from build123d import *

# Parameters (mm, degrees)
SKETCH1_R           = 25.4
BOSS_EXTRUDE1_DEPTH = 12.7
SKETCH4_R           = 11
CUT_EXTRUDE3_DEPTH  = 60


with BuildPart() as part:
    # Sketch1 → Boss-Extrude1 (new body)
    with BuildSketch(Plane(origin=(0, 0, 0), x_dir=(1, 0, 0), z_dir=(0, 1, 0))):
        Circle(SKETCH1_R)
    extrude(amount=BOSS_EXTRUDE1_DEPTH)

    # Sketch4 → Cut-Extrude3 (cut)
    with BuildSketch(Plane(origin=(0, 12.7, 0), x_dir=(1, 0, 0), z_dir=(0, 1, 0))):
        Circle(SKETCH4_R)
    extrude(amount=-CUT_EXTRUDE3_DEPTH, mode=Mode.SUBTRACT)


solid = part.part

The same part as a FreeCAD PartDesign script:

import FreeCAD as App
import Part
import Sketcher
Q = App.Units.Quantity

doc = App.newDocument("Part")
params = doc.addObject("Spreadsheet::Sheet", "Params")
for row, (alias, value) in enumerate([
    ("sketch1_diameter", "50.8 mm"),
    ("pad1_length", "12.7 mm"),
    ("sketch2_diameter", "22 mm"),
    ("pocket1_length", "60 mm"),
], start=1):
    params.set(f"A{row}", alias)
    params.set(f"B{row}", "=" + value)
    params.setAlias(f"B{row}", alias)

body = doc.addObject("PartDesign::Body", "Body")

sketch1 = doc.addObject("Sketcher::SketchObject", "Sketch")
body.addObject(sketch1)
sketch1.AttachmentSupport = (doc.XZ_Plane, [""])
sketch1.MapMode = "FlatFace"
sketch1.addGeometry(Part.Circle(App.Vector(0, 0, 0), App.Vector(0, 0, 1), 25.4), False)
sketch1.addConstraint([
    Sketcher.Constraint("Coincident", 0, 3, -1, 1),
    Sketcher.Constraint("Diameter", 0, Q("50.8 mm")),
])
sketch1.setExpression("Constraints[1]", "Params.sketch1_diameter")
pad1 = doc.addObject("PartDesign::Pad", "Pad")
body.addObject(pad1)
pad1.Profile = sketch1
pad1.setExpression("Length", "Params.pad1_length")
pad1.Reversed = True

sketch2 = doc.addObject("Sketcher::SketchObject", "Sketch001")
body.addObject(sketch2)
sketch2.AttachmentSupport = (doc.XZ_Plane, [""])
sketch2.MapMode = "FlatFace"
sketch2.AttachmentOffset = App.Placement(App.Vector(0, 0, -12.7), App.Rotation())
sketch2.addGeometry(Part.Circle(App.Vector(0, 0, 0), App.Vector(0, 0, 1), 11), False)
sketch2.addConstraint([
    Sketcher.Constraint("Coincident", 0, 3, -1, 1),
    Sketcher.Constraint("Diameter", 0, Q("22 mm")),
])
sketch2.setExpression("Constraints[1]", "Params.sketch2_diameter")
pocket1 = doc.addObject("PartDesign::Pocket", "Pocket")
body.addObject(pocket1)
pocket1.Profile = sketch2
pocket1.setExpression("Length", "Params.pocket1_length")
pocket1.Reversed = True

doc.recompute()
